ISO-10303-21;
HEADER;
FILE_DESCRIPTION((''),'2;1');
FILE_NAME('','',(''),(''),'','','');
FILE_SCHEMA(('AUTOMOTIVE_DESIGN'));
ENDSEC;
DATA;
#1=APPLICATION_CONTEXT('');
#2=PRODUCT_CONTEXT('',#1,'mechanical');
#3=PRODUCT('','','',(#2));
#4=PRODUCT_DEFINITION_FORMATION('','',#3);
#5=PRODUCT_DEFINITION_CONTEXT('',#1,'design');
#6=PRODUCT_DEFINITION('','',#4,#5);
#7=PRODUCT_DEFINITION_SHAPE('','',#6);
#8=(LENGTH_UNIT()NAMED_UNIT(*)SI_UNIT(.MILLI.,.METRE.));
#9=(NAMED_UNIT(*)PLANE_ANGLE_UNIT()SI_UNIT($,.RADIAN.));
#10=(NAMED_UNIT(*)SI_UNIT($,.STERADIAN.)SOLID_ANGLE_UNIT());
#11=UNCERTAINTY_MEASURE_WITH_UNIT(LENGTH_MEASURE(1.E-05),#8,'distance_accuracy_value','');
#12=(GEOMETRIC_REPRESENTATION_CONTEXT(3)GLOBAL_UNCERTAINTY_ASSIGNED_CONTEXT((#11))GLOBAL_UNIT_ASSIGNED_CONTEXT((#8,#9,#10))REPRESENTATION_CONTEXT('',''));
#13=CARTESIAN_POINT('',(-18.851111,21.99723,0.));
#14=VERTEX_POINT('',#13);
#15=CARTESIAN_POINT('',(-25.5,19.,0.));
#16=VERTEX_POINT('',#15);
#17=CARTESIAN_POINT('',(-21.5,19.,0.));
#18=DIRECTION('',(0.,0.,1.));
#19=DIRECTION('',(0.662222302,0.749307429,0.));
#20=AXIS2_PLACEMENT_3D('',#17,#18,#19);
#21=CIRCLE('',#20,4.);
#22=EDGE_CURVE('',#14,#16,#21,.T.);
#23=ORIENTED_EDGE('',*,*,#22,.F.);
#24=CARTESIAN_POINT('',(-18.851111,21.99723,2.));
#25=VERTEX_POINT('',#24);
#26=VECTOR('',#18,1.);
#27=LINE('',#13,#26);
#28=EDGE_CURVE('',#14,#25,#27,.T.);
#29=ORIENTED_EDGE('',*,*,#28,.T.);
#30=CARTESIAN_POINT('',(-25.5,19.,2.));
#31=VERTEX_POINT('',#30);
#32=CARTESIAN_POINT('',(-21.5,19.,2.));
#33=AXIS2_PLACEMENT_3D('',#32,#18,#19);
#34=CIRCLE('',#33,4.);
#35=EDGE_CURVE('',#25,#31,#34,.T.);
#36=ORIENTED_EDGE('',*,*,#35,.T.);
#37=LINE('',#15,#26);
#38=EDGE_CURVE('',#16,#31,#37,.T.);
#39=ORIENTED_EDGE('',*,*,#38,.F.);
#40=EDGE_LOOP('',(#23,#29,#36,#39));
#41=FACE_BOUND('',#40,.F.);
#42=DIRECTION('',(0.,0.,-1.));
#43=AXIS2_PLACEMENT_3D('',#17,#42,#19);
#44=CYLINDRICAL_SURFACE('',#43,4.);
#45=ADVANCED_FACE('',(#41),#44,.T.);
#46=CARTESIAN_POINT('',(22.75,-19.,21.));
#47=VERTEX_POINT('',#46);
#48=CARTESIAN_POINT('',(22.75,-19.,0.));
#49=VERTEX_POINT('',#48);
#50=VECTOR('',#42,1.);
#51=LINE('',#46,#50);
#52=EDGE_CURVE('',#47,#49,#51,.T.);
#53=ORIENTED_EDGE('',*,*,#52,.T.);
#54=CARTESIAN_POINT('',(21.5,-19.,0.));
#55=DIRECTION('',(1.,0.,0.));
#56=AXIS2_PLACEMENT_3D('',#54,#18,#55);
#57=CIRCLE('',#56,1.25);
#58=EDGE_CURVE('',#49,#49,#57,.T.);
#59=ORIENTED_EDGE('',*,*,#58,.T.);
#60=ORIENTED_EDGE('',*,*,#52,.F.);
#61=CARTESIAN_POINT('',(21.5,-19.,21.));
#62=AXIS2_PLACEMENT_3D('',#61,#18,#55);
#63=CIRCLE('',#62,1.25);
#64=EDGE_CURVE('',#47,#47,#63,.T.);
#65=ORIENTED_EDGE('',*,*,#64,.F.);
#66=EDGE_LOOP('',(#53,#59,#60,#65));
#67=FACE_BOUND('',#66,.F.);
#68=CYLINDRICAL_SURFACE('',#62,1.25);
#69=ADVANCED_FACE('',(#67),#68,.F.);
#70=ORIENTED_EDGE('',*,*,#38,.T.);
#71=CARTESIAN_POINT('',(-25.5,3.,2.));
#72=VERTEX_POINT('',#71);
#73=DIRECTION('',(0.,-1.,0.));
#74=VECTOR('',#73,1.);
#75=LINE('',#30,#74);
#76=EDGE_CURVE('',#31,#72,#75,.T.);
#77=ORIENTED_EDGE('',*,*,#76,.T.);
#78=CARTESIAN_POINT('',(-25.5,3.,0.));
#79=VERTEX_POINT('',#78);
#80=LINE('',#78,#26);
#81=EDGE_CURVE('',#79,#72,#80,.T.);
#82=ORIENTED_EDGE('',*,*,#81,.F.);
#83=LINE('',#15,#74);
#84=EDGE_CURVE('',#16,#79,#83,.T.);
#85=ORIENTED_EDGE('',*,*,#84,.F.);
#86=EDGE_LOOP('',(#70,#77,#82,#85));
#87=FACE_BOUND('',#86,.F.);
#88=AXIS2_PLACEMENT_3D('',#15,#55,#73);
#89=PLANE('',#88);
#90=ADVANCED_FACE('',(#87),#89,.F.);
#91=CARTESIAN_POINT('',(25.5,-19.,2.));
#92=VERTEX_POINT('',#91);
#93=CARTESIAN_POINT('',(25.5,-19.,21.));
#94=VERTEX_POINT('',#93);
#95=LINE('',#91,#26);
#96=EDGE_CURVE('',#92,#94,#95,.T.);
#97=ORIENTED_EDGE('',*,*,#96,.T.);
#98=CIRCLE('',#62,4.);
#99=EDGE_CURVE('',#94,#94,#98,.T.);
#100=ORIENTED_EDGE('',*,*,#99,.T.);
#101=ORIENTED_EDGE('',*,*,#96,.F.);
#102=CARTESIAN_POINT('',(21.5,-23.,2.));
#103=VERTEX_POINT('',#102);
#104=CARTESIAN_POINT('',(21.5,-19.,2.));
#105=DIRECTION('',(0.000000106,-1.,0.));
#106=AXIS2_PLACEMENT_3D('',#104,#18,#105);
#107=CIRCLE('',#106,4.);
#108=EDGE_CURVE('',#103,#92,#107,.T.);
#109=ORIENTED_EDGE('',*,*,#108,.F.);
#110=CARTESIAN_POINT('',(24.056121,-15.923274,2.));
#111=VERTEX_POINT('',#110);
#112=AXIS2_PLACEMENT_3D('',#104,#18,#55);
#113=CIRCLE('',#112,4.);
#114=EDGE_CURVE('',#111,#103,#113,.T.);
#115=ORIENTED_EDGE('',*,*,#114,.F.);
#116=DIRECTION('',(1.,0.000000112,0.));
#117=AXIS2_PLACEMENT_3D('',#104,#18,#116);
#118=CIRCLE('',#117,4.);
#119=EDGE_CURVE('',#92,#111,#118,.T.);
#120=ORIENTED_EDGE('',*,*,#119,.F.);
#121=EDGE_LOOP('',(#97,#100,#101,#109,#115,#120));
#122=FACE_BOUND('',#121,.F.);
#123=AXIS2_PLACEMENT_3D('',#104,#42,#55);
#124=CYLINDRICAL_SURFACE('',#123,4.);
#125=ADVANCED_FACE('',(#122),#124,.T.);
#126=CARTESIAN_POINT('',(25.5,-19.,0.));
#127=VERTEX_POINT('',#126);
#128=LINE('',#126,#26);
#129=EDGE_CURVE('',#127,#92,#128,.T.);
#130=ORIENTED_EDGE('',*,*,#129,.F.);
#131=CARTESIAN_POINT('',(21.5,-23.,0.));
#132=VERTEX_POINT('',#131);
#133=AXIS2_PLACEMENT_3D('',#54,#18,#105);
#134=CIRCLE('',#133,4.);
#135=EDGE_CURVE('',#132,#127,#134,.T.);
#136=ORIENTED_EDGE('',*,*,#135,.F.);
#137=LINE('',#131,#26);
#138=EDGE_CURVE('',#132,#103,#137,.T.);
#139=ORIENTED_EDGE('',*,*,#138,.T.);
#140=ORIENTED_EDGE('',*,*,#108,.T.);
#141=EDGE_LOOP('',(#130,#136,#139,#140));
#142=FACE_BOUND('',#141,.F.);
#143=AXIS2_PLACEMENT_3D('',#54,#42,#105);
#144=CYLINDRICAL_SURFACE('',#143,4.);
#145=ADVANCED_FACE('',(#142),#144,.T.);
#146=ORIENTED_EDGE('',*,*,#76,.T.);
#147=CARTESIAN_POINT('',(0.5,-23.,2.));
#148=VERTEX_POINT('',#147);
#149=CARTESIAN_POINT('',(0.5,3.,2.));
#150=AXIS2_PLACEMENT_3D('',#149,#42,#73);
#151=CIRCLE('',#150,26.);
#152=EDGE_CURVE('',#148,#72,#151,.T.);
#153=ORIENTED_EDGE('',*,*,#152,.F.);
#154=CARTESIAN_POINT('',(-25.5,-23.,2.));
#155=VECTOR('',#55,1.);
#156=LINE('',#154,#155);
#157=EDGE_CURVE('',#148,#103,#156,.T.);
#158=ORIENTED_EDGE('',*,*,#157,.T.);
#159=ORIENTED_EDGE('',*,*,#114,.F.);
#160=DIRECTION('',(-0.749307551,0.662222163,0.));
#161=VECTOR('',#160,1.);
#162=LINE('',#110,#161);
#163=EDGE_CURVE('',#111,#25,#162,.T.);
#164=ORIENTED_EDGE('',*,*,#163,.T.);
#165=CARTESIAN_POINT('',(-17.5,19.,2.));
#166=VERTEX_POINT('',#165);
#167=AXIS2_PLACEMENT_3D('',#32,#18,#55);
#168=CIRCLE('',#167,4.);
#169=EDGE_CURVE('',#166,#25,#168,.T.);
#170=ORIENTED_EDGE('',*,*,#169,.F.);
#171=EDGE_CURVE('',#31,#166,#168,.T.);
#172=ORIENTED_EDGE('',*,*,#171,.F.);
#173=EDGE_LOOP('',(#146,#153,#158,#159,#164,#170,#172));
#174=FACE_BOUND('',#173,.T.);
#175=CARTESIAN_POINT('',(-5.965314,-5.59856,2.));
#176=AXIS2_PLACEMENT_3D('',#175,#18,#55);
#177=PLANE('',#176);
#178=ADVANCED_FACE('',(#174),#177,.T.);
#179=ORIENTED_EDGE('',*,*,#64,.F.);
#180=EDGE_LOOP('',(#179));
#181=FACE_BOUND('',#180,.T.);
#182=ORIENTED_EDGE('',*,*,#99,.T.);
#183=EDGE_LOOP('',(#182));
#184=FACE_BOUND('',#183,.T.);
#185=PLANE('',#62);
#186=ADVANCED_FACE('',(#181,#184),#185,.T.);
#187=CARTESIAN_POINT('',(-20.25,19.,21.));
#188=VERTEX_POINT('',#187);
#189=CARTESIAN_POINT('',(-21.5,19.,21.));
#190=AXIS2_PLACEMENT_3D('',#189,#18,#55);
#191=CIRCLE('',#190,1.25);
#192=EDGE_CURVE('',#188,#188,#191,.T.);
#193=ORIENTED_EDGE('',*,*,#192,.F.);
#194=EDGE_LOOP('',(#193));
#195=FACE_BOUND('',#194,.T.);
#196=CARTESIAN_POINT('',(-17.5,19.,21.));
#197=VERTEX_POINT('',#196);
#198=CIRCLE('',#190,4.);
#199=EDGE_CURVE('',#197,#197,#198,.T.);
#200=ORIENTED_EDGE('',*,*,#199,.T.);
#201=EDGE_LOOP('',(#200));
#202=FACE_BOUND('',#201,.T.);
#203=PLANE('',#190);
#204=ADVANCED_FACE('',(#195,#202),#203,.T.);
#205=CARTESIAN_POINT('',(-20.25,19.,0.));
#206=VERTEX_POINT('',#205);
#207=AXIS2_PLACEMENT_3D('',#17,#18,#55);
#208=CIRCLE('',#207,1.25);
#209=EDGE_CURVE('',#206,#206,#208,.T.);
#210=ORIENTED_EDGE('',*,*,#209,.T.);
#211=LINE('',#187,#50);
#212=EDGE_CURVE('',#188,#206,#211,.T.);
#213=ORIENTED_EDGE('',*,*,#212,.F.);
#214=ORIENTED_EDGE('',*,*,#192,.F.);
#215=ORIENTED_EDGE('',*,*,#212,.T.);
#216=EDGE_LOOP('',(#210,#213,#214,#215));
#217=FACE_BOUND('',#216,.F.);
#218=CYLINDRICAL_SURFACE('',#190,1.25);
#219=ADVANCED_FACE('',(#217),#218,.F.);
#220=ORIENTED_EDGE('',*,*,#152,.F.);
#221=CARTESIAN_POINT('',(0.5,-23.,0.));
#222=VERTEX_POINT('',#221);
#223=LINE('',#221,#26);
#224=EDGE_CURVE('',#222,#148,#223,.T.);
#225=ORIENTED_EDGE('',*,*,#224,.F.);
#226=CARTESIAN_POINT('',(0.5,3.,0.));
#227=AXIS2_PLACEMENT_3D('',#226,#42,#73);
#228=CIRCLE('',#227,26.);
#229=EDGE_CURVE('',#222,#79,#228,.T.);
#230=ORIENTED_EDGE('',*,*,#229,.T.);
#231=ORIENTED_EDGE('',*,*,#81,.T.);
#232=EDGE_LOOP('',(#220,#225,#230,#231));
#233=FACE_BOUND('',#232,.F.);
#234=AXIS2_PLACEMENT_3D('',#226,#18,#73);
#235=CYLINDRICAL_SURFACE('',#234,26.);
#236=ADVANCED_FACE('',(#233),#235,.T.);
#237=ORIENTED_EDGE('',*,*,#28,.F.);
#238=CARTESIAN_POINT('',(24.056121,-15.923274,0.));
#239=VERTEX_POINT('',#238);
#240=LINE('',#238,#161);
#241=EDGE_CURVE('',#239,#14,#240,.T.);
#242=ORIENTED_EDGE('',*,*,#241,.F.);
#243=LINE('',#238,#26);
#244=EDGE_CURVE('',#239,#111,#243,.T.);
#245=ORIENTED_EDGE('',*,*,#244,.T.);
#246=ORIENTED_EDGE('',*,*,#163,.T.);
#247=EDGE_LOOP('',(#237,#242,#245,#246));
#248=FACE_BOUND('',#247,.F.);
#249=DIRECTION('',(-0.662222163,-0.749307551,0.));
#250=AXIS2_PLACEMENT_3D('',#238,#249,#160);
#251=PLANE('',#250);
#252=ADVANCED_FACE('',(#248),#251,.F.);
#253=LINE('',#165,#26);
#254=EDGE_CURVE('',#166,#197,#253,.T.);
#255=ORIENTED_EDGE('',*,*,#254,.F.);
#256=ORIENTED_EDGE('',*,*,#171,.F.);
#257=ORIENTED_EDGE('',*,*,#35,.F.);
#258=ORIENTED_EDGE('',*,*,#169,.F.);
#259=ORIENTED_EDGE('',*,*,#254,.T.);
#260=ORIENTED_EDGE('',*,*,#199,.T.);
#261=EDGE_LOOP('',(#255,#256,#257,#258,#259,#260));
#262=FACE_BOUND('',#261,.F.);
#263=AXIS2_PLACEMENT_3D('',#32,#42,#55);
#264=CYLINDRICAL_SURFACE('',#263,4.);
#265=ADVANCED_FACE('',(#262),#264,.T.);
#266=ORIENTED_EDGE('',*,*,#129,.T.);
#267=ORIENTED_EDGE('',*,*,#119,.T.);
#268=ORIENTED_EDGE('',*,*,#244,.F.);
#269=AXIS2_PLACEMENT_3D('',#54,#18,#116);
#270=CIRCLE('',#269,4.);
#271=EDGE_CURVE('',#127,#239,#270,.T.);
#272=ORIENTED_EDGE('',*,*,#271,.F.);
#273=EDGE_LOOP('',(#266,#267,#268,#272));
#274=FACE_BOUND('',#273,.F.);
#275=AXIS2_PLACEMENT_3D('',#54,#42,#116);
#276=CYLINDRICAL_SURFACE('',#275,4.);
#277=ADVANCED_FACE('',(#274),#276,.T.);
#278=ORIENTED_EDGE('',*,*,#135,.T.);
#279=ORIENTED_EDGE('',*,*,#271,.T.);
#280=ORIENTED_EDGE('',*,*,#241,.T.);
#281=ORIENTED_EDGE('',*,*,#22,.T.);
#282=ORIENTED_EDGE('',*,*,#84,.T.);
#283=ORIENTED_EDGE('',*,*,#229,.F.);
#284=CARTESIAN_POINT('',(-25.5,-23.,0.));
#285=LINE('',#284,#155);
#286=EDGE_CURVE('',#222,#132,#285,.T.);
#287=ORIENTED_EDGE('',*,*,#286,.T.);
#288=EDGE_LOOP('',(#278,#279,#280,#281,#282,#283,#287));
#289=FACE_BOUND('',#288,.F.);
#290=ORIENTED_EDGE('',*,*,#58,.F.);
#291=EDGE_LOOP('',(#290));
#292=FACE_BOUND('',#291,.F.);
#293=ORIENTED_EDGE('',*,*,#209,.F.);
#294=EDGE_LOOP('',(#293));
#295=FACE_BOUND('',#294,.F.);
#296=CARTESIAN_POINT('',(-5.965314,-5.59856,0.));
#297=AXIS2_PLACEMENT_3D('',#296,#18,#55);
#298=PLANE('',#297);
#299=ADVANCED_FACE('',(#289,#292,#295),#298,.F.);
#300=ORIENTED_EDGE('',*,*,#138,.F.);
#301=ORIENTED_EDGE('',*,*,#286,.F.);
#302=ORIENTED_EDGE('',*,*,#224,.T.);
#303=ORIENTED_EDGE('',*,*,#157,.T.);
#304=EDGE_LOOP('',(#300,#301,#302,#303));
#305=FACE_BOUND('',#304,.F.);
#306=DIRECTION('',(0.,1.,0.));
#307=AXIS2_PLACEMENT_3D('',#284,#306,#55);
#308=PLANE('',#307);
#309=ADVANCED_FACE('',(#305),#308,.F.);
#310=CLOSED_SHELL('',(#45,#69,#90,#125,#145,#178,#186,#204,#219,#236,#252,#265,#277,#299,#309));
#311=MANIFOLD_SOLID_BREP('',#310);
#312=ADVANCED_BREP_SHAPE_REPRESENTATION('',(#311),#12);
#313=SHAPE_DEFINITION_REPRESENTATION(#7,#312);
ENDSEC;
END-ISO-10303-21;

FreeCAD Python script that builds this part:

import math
import FreeCAD as App
import Part
import Sketcher

V = App.Vector


def edges_at(feature, points):
    """Names of the edges that pass closest to the given points."""
    edges = feature.Shape.Edges
    near = lambda p: min(range(len(edges)), key=lambda i: edges[i].distToShape(Part.Vertex(*p))[0])
    return sorted({f"Edge{near(p) + 1}" for p in points})

doc = App.newDocument("Part")
body = doc.addObject("PartDesign::Body", "Body")

# Sketch on XY plane
sketch1 = body.newObject("Sketcher::SketchObject", "Sketch")
sketch1.AttachmentSupport = (doc.getObject("XY_Plane"), [""])
sketch1.MapMode = "FlatFace"
sketch1.addGeometry(Part.LineSegment(V(-25.5, 19, 0), V(-25.5, -23, 0)), False)
sketch1.addGeometry(Part.LineSegment(V(-25.5, -23, 0), V(21.5, -23, 0)), False)
sketch1.addGeometry(Part.ArcOfCircle(Part.Circle(V(21.5, -19, 0), V(0, 0, 1), 4), math.radians(-90), math.radians(0)), False)
sketch1.addGeometry(Part.ArcOfCircle(Part.Circle(V(21.5, -19, 0), V(0, 0, 1), 4), math.radians(0), math.radians(50)), False)
sketch1.addGeometry(Part.LineSegment(V(24.1, -15.9, 0), V(-18.9, 22, 0)), False)
sketch1.addGeometry(Part.ArcOfCircle(Part.Circle(V(-21.5, 19, 0), V(0, 0, 1), 4), math.radians(49), math.radians(180)), False)
sketch1.addConstraint(Sketcher.Constraint("Coincident", 0, 2, 1, 1))
sketch1.addConstraint(Sketcher.Constraint("Tangent", 1, 2, 2, 1))
sketch1.addConstraint(Sketcher.Constraint("Tangent", 2, 2, 3, 1))
sketch1.addConstraint(Sketcher.Constraint("Coincident", 3, 2, 4, 1))
sketch1.addConstraint(Sketcher.Constraint("Tangent", 4, 2, 5, 1))
sketch1.addConstraint(Sketcher.Constraint("Tangent", 5, 2, 0, 1))
sketch1.addConstraint(Sketcher.Constraint("Vertical", 0))
sketch1.addConstraint(Sketcher.Constraint("Horizontal", 1))
sketch1.addConstraint(Sketcher.Constraint("Equal", 2, 3))
sketch1.addConstraint(Sketcher.Constraint("Equal", 3, 5))
sketch1.addConstraint(Sketcher.Constraint("Symmetric", 2, 3, 5, 3, -1, 1))
sketch1.addConstraint(Sketcher.Constraint("Horizontal", 3, 3, 2, 2))
sketch1.addConstraint(Sketcher.Constraint("Radius", 2, 4.0))
sketch1.addConstraint(Sketcher.Constraint("DistanceX", 1, 1, 1, 2, 47.0))
sketch1.addConstraint(Sketcher.Constraint("DistanceY", 0, 2, 0, 1, 42.0))
sketch1.addConstraint(Sketcher.Constraint("Distance", 4, 57.262511))
pad1 = body.newObject("PartDesign::Pad", "Pad")
pad1.Profile = sketch1
pad1.Length = 2

# Sketch on XY plane
sketch2 = body.newObject("Sketcher::SketchObject", "Sketch001")
sketch2.AttachmentSupport = (doc.getObject("XY_Plane"), [""])
sketch2.MapMode = "FlatFace"
sketch2.AttachmentOffset = App.Placement(V(0, 0, 2), App.Rotation())
sketch2.addGeometry(Part.Circle(V(-21.5, 19, 0), V(0, 0, 1), 4), False)
sketch2.addGeometry(Part.Circle(V(21.5, -19, 0), V(0, 0, 1), 4), False)
sketch2.addConstraint(Sketcher.Constraint("Equal", 0, 1))
sketch2.addConstraint(Sketcher.Constraint("Symmetric", 0, 3, 1, 3, -1, 1))
sketch2.addConstraint(Sketcher.Constraint("Diameter", 0, 8.0))
sketch2.addConstraint(Sketcher.Constraint("DistanceY", -1, 1, 0, 3, 19.0))
sketch2.addConstraint(Sketcher.Constraint("DistanceX", 0, 3, 1, 3, 43.0))
pad2 = body.newObject("PartDesign::Pad", "Pad001")
pad2.Profile = sketch2
pad2.Length = 19

# Sketch on XY plane
sketch3 = body.newObject("Sketcher::SketchObject", "Sketch002")
sketch3.AttachmentSupport = (doc.getObject("XY_Plane"), [""])
sketch3.MapMode = "FlatFace"
sketch3.AttachmentOffset = App.Placement(V(0, 0, 21), App.Rotation())
sketch3.addGeometry(Part.Circle(V(-21.5, 19, 0), V(0, 0, 1), 1.2), False)
sketch3.addConstraint(Sketcher.Constraint("Diameter", 0, 2.5))
sketch3.addConstraint(Sketcher.Constraint("DistanceY", -1, 1, 0, 3, 19.0))
sketch3.addConstraint(Sketcher.Constraint("DistanceX", 0, 3, -1, 1, 21.5))
pocket1 = body.newObject("PartDesign::Pocket", "Pocket")
pocket1.Profile = sketch3
pocket1.Type = "ThroughAll"

# Sketch on XY plane
sketch4 = body.newObject("Sketcher::SketchObject", "Sketch003")
sketch4.AttachmentSupport = (doc.getObject("XY_Plane"), [""])
sketch4.MapMode = "FlatFace"
sketch4.AttachmentOffset = App.Placement(V(0, 0, 21), App.Rotation())
sketch4.addGeometry(Part.Circle(V(21.5, -19, 0), V(0, 0, 1), 1.2), False)
sketch4.addConstraint(Sketcher.Constraint("Diameter", 0, 2.5))
sketch4.addConstraint(Sketcher.Constraint("DistanceY", 0, 3, -1, 1, 19.0))
sketch4.addConstraint(Sketcher.Constraint("DistanceX", -1, 1, 0, 3, 21.5))
pocket2 = body.newObject("PartDesign::Pocket", "Pocket001")
pocket2.Profile = sketch4
pocket2.Type = "ThroughAll"
doc.recompute()

fillet = body.newObject("PartDesign::Fillet", "Fillet")
fillet.Base = (pocket2, edges_at(pocket2, [(-25.5, -23, 1)]))
fillet.Radius = 26

doc.recompute()
